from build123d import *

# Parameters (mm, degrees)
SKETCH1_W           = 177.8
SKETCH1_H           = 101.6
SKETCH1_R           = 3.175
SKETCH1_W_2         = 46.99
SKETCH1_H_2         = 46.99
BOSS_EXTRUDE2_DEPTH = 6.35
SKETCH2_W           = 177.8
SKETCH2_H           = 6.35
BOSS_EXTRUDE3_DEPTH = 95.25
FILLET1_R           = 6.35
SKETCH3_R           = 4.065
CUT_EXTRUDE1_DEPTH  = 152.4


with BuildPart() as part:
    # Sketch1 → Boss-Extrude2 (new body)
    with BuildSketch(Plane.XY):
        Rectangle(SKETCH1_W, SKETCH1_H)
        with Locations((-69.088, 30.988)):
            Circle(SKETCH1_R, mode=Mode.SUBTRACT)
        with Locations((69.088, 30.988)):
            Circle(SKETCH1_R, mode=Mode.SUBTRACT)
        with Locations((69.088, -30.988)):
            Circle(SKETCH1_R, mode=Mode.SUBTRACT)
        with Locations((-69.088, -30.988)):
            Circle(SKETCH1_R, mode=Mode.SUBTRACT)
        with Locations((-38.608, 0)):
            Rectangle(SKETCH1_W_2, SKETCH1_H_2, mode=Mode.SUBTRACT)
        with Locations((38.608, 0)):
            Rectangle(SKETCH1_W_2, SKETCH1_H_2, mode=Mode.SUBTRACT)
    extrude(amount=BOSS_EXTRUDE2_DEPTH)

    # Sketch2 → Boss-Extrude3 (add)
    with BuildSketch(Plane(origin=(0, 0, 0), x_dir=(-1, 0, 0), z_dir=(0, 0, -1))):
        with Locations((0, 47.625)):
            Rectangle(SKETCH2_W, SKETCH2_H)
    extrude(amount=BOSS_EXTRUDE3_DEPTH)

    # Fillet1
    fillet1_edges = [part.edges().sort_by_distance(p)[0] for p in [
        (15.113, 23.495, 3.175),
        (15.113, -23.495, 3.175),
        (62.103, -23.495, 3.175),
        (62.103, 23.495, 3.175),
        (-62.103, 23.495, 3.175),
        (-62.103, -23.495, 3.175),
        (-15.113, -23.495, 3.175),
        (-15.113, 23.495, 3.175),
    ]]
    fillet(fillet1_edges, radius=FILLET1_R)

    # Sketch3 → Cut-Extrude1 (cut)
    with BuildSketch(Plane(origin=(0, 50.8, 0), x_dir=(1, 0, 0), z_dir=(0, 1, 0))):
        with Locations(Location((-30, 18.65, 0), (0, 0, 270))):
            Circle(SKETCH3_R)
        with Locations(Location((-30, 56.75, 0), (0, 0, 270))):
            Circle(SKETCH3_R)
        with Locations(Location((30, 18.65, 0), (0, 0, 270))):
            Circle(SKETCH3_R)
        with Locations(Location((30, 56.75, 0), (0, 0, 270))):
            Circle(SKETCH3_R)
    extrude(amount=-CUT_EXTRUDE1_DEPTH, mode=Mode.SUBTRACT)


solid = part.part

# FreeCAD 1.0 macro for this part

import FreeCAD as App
import Part
import Sketcher

V = App.Vector
Q = App.Units.Quantity


def edges_at(feature, points):
    """Names of the edges that pass closest to the given points."""
    edges = feature.Shape.Edges
    near = lambda p: min(range(len(edges)), key=lambda i: edges[i].distToShape(Part.Vertex(*p))[0])
    return sorted({f"Edge{near(p) + 1}" for p in points})


def add_polygon(sketch, points):
    """Adds a closed chain of lines whose ends are joined by coincident constraints."""
    first, n = sketch.GeometryCount, len(points)
    for a, b in zip(points, points[1:] + points[:1]):
        sketch.addGeometry(Part.LineSegment(App.Vector(*a, 0), App.Vector(*b, 0)), False)
    for i in range(n):
        sketch.addConstraint(Sketcher.Constraint("Coincident", first + i, 2, first + (i + 1) % n, 1))

doc = App.newDocument("Part")
body = doc.addObject("PartDesign::Body", "Body")

# Sketch on XY plane
sketch1 = doc.addObject("Sketcher::SketchObject", "Sketch")
body.addObject(sketch1)
sketch1.AttachmentSupport = (doc.XY_Plane, [""])
sketch1.MapMode = "FlatFace"
add_polygon(sketch1, [(-88.9, 50.8), (-88.9, -50.8), (88.9, -50.8), (88.9, 50.8)])  # lines 0-3
sketch1.addGeometry(Part.Circle(V(-69.1, -31, 0), V(0, 0, 1), 3.2), False)  # 4
sketch1.addGeometry(Part.Circle(V(69.1, -31, 0), V(0, 0, 1), 3.2), False)  # 5
add_polygon(sketch1, [(-15.1, -23.5), (-62.1, -23.5), (-62.1, 23.5), (-15.1, 23.5)])  # lines 6-9
sketch1.addGeometry(Part.Circle(V(-69.1, 31, 0), V(0, 0, 1), 3.2), False)  # 10
add_polygon(sketch1, [(62.1, -23.5), (15.1, -23.5), (15.1, 23.5), (62.1, 23.5)])  # lines 11-14
sketch1.addGeometry(Part.Circle(V(69.1, 31, 0), V(0, 0, 1), 3.2), False)  # 15
sketch1.addConstraint([
    Sketcher.Constraint("Vertical", 0),
    Sketcher.Constraint("Horizontal", 1),
    Sketcher.Constraint("Vertical", 2),
    Sketcher.Constraint("Horizontal", 3),
    Sketcher.Constraint("Horizontal", 6),
    Sketcher.Constraint("Vertical", 7),
    Sketcher.Constraint("Horizontal", 8),
    Sketcher.Constraint("Vertical", 9),
    Sketcher.Constraint("Horizontal", 11),
    Sketcher.Constraint("Vertical", 12),
    Sketcher.Constraint("Horizontal", 13),
    Sketcher.Constraint("Vertical", 14),
    Sketcher.Constraint("Equal", 4, 5),
    Sketcher.Constraint("Equal", 5, 10),
    Sketcher.Constraint("Equal", 10, 15),
    Sketcher.Constraint("Symmetric", 5, 3, 10, 3, -1, 1),
    Sketcher.Constraint("Symmetric", 4, 3, 15, 3, -1, 1),
    Sketcher.Constraint("Symmetric", 0, 2, 2, 2, -1, 1),
    Sketcher.Constraint("Symmetric", 8, 2, 11, 2, -1, 1),
    Sketcher.Constraint("Symmetric", 6, 2, 13, 2, -1, 1),
    Sketcher.Constraint("Symmetric", 4, 3, 5, 3, -2),
    Sketcher.Constraint("Horizontal", 9, 2, 11, 2),
    Sketcher.Constraint("Equal", 13, 7),
    Sketcher.Constraint("Diameter", 4, Q("0.25 in")),
    Sketcher.Constraint("DistanceX", 1, 1, 1, 2, Q("7 in")),
    Sketcher.Constraint("DistanceY", 0, 2, 0, 1, Q("4 in")),
    Sketcher.Constraint("DistanceX", 6, 2, 6, 1, Q("1.85 in")),
    Sketcher.Constraint("DistanceX", 4, 3, -1, 1, Q("2.72 in")),
    Sketcher.Constraint("DistanceY", 4, 3, -1, 1, Q("1.22 in")),
    Sketcher.Constraint("DistanceX", 9, 2, 11, 2, Q("1.19 in")),
])
pad1 = doc.addObject("PartDesign::Pad", "Pad")
body.addObject(pad1)
pad1.Profile = sketch1
pad1.Length = Q("0.25 in")

# Sketch on XY plane
sketch2 = doc.addObject("Sketcher::SketchObject", "Sketch001")
body.addObject(sketch2)
sketch2.AttachmentSupport = (doc.XY_Plane, [""])
sketch2.MapMode = "FlatFace"
add_polygon(sketch2, [(89, 51), (89, 44), (-89, 44), (-89, 51)])  # lines 0-3
sketch2.addConstraint([
    Sketcher.Constraint("Vertical", 0),
    Sketcher.Constraint("Horizontal", 1),
    Sketcher.Constraint("Vertical", 2),
    Sketcher.Constraint("Horizontal", 3),
    Sketcher.Constraint("DistanceX", 1, 2, 1, 1, Q("7 in")),
    Sketcher.Constraint("DistanceY", -1, 1, 2, 2, Q("2 in")),
    Sketcher.Constraint("DistanceY", 0, 2, 0, 1, Q("0.25 in")),
    Sketcher.Constraint("DistanceX", -1, 1, 0, 2, Q("3.5 in")),
])
pad2 = doc.addObject("PartDesign::Pad", "Pad001")
body.addObject(pad2)
pad2.Profile = sketch2
pad2.Length = Q("3.75 in")
pad2.Reversed = True
doc.recompute()

fillet = doc.addObject("PartDesign::Fillet", "Fillet")
body.addObject(fillet)
fillet.Base = (pad2, edges_at(pad2, [
    (15.113, 23.495, 3.175),
    (15.113, -23.495, 3.175),
    (62.103, -23.495, 3.175),
    (62.103, 23.495, 3.175),
    (-62.103, 23.495, 3.175),
    (-62.103, -23.495, 3.175),
    (-15.113, -23.495, 3.175),
    (-15.113, 23.495, 3.175),
]))
fillet.Radius = Q("0.25 in")

# Sketch on XZ plane
sketch3 = doc.addObject("Sketcher::SketchObject", "Sketch002")
body.addObject(sketch3)
sketch3.AttachmentSupport = (doc.XZ_Plane, [""])
sketch3.MapMode = "FlatFace"
sketch3.AttachmentOffset = App.Placement(V(0, 0, -2 * 25.4), App.Rotation())
sketch3.addGeometry([
    Part.Circle(V(-30, -18.6, 0), V(0, 0, 1), 4.1),
    Part.Circle(V(-30, -56.8, 0), V(0, 0, 1), 4.1),
    Part.Circle(V(30, -18.6, 0), V(0, 0, 1), 4.1),
    Part.Circle(V(30, -56.8, 0), V(0, 0, 1), 4.1),
], False)
sketch3.addConstraint([
    Sketcher.Constraint("Equal", 0, 1),
    Sketcher.Constraint("Equal", 1, 2),
    Sketcher.Constraint("Equal", 2, 3),
    Sketcher.Constraint("Symmetric", 0, 3, 2, 3, -2),
    Sketcher.Constraint("Symmetric", 1, 3, 3, 3, -2),
    Sketcher.Constraint("Vertical", 0, 3, 1, 3),
    Sketcher.Constraint("DistanceY", 1, 3, 0, 3, Q("1.5 in")),
    Sketcher.Constraint("Diameter", 0, Q("8.13 mm")),
    Sketcher.Constraint("DistanceX", 0, 3, -1, 1, Q("30 mm")),
    Sketcher.Constraint("DistanceY", 0, 3, -1, 1, Q("18.65 mm")),
])
pocket1 = doc.addObject("PartDesign::Pocket", "Pocket")
body.addObject(pocket1)
pocket1.Profile = sketch3
pocket1.Length = Q("6 in")
pocket1.Reversed = True

doc.recompute()
